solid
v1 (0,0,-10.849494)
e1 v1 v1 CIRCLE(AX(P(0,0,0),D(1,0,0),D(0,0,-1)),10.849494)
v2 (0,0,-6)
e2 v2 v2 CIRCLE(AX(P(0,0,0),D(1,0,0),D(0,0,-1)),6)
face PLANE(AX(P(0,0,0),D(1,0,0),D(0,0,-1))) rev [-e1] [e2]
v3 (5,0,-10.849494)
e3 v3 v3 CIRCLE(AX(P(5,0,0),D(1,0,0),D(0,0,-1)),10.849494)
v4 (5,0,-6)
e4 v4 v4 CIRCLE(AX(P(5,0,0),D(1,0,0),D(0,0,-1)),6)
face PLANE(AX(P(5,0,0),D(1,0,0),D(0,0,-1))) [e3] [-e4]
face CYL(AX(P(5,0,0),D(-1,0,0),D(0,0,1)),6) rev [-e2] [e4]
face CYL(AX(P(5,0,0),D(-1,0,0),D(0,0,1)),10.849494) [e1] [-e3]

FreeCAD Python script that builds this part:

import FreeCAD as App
import Part
import Sketcher

doc = App.newDocument("Part")
body = doc.addObject("PartDesign::Body", "Body")

sketch1 = doc.addObject("Sketcher::SketchObject", "Sketch")
body.addObject(sketch1)
sketch1.AttachmentSupport = (doc.YZ_Plane, [""])
sketch1.MapMode = "FlatFace"
sketch1.addGeometry([
    Part.Circle(App.Vector(0, 0, 0), App.Vector(0, 0, 1), 11),
    Part.Circle(App.Vector(0, 0, 0), App.Vector(0, 0, 1), 6),
], False)
sketch1.addConstraint([
    Sketcher.Constraint("Coincident", 0, 3, -1, 1),
    Sketcher.Constraint("Coincident", 1, 3, -1, 1),
    Sketcher.Constraint("Diameter", 1, 12.0),
    Sketcher.Constraint("Diameter", 0, 21.698987),
])
pad1 = doc.addObject("PartDesign::Pad", "Pad")
body.addObject(pad1)
pad1.Profile = sketch1
pad1.Length = 5

doc.recompute()
